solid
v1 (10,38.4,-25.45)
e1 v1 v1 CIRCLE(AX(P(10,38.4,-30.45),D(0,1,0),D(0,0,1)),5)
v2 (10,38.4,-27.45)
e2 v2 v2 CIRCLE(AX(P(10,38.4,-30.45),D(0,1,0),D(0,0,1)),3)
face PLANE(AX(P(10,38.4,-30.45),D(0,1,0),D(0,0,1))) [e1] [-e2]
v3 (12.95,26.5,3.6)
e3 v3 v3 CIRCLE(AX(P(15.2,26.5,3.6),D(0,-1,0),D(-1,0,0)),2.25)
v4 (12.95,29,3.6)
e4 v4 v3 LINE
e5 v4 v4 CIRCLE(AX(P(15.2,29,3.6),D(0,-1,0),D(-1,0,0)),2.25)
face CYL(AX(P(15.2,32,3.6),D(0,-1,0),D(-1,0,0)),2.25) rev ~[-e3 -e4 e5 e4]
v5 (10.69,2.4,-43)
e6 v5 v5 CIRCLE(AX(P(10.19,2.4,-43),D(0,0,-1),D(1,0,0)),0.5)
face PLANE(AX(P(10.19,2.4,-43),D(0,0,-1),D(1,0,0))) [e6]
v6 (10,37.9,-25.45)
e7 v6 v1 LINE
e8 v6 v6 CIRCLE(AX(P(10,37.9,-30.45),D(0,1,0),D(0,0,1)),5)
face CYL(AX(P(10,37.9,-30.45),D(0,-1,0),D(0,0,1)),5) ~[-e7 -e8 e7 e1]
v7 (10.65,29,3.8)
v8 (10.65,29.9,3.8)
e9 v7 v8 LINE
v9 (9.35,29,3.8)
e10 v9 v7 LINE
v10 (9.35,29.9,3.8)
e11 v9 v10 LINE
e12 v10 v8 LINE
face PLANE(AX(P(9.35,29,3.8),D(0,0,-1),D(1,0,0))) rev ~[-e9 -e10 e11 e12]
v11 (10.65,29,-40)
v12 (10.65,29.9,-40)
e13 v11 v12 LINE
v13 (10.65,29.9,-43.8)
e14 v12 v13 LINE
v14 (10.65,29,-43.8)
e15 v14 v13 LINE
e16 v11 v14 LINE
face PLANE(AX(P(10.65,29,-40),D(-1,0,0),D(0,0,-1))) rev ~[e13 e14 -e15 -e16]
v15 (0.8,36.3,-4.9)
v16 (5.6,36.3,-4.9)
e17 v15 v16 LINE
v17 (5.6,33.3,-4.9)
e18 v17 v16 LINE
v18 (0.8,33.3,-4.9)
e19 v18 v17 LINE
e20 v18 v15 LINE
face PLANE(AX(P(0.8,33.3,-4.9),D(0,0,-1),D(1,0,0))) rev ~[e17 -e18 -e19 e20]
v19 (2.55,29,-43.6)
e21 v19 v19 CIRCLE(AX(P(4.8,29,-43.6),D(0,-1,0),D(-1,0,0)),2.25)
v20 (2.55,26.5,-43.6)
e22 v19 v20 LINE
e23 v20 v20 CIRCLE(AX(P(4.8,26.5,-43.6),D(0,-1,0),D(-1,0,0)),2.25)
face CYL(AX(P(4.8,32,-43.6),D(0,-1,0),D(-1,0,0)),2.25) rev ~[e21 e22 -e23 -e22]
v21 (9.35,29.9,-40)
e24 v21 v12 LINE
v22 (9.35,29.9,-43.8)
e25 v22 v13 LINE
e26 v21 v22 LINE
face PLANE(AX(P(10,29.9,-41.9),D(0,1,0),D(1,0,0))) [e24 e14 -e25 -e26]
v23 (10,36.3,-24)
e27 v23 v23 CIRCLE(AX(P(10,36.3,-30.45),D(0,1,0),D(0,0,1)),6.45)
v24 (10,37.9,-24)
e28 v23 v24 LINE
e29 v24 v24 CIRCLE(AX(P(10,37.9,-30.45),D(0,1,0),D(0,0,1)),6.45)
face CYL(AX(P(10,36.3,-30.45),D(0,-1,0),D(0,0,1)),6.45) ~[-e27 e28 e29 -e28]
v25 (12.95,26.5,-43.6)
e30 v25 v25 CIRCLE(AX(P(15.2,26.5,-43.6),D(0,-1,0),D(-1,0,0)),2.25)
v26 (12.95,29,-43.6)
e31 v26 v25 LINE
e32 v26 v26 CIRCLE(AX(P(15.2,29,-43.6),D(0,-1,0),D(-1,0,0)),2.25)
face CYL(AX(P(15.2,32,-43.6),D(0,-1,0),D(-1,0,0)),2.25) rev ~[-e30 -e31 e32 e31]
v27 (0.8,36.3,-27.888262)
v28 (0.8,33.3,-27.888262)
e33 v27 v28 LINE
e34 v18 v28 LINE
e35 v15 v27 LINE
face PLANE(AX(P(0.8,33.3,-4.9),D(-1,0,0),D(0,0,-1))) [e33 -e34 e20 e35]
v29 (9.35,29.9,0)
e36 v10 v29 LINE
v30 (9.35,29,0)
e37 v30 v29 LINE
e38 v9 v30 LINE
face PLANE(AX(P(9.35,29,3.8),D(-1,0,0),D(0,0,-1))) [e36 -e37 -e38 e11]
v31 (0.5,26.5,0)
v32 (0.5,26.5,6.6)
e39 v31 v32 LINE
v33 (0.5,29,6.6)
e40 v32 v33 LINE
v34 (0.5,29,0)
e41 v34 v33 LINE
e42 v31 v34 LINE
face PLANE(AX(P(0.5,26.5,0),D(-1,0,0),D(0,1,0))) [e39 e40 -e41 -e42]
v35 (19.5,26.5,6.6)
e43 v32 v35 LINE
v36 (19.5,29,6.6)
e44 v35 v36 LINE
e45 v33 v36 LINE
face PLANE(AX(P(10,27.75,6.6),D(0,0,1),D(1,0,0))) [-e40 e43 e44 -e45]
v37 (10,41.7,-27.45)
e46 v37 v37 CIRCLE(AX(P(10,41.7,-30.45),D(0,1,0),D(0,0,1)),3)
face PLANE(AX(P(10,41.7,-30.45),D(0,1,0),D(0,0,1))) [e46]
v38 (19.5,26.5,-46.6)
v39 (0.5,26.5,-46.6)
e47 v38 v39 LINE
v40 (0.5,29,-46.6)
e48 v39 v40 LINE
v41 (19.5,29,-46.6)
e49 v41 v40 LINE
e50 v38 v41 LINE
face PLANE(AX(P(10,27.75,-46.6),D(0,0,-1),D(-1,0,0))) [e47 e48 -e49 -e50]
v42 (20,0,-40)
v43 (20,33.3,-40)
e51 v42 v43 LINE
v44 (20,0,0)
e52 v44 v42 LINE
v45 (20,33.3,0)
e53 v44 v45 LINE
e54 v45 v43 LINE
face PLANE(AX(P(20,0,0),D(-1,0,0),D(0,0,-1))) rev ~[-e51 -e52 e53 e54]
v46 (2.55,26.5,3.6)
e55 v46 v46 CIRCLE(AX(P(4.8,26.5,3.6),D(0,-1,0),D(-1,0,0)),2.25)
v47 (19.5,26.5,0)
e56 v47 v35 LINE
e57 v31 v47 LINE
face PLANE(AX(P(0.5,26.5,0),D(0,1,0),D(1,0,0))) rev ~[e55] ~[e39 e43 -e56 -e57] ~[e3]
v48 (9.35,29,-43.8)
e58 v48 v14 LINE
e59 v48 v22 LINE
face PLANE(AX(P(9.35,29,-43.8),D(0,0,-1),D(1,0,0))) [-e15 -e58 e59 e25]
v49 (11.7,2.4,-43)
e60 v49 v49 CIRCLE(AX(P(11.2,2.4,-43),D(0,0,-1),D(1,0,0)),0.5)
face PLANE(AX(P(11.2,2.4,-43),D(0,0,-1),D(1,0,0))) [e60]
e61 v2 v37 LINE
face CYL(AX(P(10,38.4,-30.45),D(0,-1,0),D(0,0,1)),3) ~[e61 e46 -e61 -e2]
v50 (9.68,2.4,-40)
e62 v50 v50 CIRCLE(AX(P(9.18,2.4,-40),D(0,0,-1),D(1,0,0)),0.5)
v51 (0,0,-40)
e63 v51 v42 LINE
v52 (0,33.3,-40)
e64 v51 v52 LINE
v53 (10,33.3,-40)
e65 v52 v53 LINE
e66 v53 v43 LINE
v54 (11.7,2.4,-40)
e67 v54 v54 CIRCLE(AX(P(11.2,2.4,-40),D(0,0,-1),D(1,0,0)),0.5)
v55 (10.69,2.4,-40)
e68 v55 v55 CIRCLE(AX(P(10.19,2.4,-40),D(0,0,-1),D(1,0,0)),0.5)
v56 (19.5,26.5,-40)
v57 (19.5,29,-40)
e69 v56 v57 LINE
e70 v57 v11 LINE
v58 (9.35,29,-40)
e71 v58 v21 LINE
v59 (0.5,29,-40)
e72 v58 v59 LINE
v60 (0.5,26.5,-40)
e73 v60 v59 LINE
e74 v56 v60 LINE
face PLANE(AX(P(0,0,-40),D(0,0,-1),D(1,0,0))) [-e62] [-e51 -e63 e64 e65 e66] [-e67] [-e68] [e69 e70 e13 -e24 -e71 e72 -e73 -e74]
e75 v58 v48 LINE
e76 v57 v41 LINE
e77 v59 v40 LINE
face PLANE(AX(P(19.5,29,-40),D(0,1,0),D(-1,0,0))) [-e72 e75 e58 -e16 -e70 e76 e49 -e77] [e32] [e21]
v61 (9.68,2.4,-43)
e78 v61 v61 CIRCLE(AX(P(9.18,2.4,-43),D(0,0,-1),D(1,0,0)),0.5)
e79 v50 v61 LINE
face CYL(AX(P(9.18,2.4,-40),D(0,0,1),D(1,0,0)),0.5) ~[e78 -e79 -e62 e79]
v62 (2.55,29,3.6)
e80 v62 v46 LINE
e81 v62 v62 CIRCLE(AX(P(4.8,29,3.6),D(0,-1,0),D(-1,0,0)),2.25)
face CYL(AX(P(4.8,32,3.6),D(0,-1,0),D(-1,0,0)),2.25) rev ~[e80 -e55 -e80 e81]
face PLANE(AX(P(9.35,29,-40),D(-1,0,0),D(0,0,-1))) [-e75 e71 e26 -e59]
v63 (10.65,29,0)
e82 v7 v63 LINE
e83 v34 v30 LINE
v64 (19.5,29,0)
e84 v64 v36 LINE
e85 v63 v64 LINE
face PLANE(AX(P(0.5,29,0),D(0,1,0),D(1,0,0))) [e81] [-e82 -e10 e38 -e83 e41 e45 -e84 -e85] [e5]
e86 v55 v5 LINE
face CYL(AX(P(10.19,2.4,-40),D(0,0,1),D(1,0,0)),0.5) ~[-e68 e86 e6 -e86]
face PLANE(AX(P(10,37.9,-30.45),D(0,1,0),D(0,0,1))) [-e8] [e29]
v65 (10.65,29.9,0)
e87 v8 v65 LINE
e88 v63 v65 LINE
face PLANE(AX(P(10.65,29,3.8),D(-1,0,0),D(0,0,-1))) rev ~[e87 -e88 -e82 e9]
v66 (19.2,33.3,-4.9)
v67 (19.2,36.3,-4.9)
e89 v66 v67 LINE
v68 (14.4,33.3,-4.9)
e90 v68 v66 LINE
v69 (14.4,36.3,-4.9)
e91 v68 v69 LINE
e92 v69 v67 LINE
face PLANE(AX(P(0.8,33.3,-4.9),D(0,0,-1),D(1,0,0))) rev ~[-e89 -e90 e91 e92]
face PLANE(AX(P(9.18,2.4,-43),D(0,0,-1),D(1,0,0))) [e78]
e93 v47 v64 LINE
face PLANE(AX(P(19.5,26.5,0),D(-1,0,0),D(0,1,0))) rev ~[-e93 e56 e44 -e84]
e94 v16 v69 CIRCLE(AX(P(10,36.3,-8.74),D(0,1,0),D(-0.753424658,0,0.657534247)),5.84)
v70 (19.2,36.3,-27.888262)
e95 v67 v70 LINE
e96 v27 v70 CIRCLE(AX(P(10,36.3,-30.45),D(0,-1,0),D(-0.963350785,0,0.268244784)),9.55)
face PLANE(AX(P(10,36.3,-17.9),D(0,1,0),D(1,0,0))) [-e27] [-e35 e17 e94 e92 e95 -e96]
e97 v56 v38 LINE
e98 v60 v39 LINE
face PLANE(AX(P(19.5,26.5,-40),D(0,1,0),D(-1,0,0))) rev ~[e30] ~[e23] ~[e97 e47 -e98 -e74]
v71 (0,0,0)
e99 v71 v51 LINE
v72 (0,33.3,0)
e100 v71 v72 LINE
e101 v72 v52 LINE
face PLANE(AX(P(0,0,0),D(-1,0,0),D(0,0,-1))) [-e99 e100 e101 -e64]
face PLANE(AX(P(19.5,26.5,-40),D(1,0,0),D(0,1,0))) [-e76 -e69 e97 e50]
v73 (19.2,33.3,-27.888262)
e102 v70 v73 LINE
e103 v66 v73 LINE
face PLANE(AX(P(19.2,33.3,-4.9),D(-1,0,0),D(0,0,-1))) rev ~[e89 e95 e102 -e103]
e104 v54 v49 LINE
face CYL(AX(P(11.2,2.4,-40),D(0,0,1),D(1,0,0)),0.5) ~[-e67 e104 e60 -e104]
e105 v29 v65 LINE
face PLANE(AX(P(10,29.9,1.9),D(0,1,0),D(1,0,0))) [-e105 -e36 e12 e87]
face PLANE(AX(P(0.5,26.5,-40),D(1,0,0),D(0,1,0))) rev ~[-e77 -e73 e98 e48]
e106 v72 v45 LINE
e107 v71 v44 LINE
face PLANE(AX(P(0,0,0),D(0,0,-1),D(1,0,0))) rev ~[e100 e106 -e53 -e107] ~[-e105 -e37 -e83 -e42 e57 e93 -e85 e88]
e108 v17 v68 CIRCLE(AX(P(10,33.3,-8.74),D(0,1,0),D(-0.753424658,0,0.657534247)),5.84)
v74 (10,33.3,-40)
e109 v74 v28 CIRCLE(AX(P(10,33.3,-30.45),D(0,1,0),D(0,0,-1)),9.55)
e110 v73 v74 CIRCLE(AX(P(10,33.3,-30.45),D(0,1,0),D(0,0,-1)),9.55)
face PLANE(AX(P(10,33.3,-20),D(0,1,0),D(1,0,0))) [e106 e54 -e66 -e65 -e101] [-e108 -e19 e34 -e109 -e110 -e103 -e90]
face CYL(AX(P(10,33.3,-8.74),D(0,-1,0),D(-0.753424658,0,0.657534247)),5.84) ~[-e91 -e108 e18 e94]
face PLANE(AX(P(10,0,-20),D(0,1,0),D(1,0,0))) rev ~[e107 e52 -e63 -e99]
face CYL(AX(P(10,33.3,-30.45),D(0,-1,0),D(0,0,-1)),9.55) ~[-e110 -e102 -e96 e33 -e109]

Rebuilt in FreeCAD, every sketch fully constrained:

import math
import FreeCAD as App
import Part
import Sketcher


def add_polygon(sketch, points):
    """Adds a closed chain of lines whose ends are joined by coincident constraints."""
    first, n = sketch.GeometryCount, len(points)
    for a, b in zip(points, points[1:] + points[:1]):
        sketch.addGeometry(Part.LineSegment(App.Vector(*a, 0), App.Vector(*b, 0)), False)
    for i in range(n):
        sketch.addConstraint(Sketcher.Constraint("Coincident", first + i, 2, first + (i + 1) % n, 1))

doc = App.newDocument("Part")
body = doc.addObject("PartDesign::Body", "Body")

# Sketch on XZ plane
sketch1 = doc.addObject("Sketcher::SketchObject", "Sketch")
body.addObject(sketch1)
sketch1.AttachmentSupport = (doc.XZ_Plane, [""])
sketch1.MapMode = "FlatFace"
add_polygon(sketch1, [(0, -40), (0, 0), (20, 0), (20, -40)])  # lines 0-3
sketch1.addConstraint([
    Sketcher.Constraint("Vertical", 0),
    Sketcher.Constraint("Horizontal", 1),
    Sketcher.Constraint("Vertical", 2),
    Sketcher.Constraint("Horizontal", 3),
    Sketcher.Constraint("Coincident", 0, 2, -1, 1),
    Sketcher.Constraint("DistanceX", 1, 1, 1, 2, 20.0),
    Sketcher.Constraint("DistanceY", 0, 1, 0, 2, 40.0),
])
pad1 = doc.addObject("PartDesign::Pad", "Pad")
body.addObject(pad1)
pad1.Profile = sketch1
pad1.Length = 33.3
pad1.Reversed = True

# Sketch on XY plane
sketch2 = doc.addObject("Sketcher::SketchObject", "Sketch001")
body.addObject(sketch2)
sketch2.AttachmentSupport = (doc.XY_Plane, [""])
sketch2.MapMode = "FlatFace"
add_polygon(sketch2, [(0.5, 29), (0.5, 26.5), (19.5, 26.5), (19.5, 29)])  # lines 0-3
sketch2.addConstraint([
    Sketcher.Constraint("Vertical", 0),
    Sketcher.Constraint("Horizontal", 1),
    Sketcher.Constraint("Vertical", 2),
    Sketcher.Constraint("Horizontal", 3),
    Sketcher.Constraint("DistanceX", 1, 1, 1, 2, 19.0),
    Sketcher.Constraint("DistanceY", 0, 2, 0, 1, 2.5),
    Sketcher.Constraint("DistanceY", -1, 1, 2, 2, 29.0),
    Sketcher.Constraint("DistanceX", -1, 1, 0, 2, 0.5),
])
pad2 = doc.addObject("PartDesign::Pad", "Pad001")
body.addObject(pad2)
pad2.Profile = sketch2
pad2.Length = 6.6

# Sketch on XY plane
sketch3 = doc.addObject("Sketcher::SketchObject", "Sketch002")
body.addObject(sketch3)
sketch3.AttachmentSupport = (doc.XY_Plane, [""])
sketch3.MapMode = "FlatFace"
sketch3.AttachmentOffset = App.Placement(App.Vector(0, 0, -40), App.Rotation())
add_polygon(sketch3, [(19.5, 29), (19.5, 26.5), (0.5, 26.5), (0.5, 29)])  # lines 0-3
sketch3.addConstraint([
    Sketcher.Constraint("Vertical", 0),
    Sketcher.Constraint("Horizontal", 1),
    Sketcher.Constraint("Vertical", 2),
    Sketcher.Constraint("Horizontal", 3),
    Sketcher.Constraint("DistanceX", 1, 2, 1, 1, 19.0),
    Sketcher.Constraint("DistanceY", 0, 2, 0, 1, 2.5),
    Sketcher.Constraint("DistanceY", -1, 1, 2, 2, 29.0),
    Sketcher.Constraint("DistanceX", -1, 1, 0, 2, 19.5),
])
pad3 = doc.addObject("PartDesign::Pad", "Pad002")
body.addObject(pad3)
pad3.Profile = sketch3
pad3.Length = 6.6
pad3.Reversed = True

# Sketch on XZ plane
sketch4 = doc.addObject("Sketcher::SketchObject", "Sketch003")
body.addObject(sketch4)
sketch4.AttachmentSupport = (doc.XZ_Plane, [""])
sketch4.MapMode = "FlatFace"
sketch4.AttachmentOffset = App.Placement(App.Vector(0, 0, -33.3), App.Rotation())
sketch4.addGeometry(Part.Circle(App.Vector(10, -30, 0), App.Vector(0, 0, 1), 10), False)
sketch4.addConstraint([
    Sketcher.Constraint("Diameter", 0, 19.1),
    Sketcher.Constraint("DistanceX", -1, 1, 0, 3, 10.0),
    Sketcher.Constraint("DistanceY", 0, 3, -1, 1, 30.45),
])
pad4 = doc.addObject("PartDesign::Pad", "Pad003")
body.addObject(pad4)
pad4.Profile = sketch4
pad4.Length = 3
pad4.Reversed = True

# Sketch on XZ plane
sketch5 = doc.addObject("Sketcher::SketchObject", "Sketch004")
body.addObject(sketch5)
sketch5.AttachmentSupport = (doc.XZ_Plane, [""])
sketch5.MapMode = "FlatFace"
sketch5.AttachmentOffset = App.Placement(App.Vector(0, 0, -33.3), App.Rotation())
add_polygon(sketch5, [(1, -31), (1, -5), (19, -5), (19, -31)])  # lines 0-3
sketch5.addConstraint([
    Sketcher.Constraint("Vertical", 0),
    Sketcher.Constraint("Horizontal", 1),
    Sketcher.Constraint("Vertical", 2),
    Sketcher.Constraint("Horizontal", 3),
    Sketcher.Constraint("DistanceY", 0, 1, 0, 2, 26.0),
    Sketcher.Constraint("DistanceX", 1, 1, 1, 2, 18.4),
    Sketcher.Constraint("DistanceX", -1, 1, 0, 2, 0.8),
    Sketcher.Constraint("DistanceY", 0, 2, -1, 1, 4.9),
])
pad5 = doc.addObject("PartDesign::Pad", "Pad004")
body.addObject(pad5)
pad5.Profile = sketch5
pad5.Length = 3
pad5.Reversed = True

# Sketch on XY plane
sketch6 = doc.addObject("Sketcher::SketchObject", "Sketch005")
body.addObject(sketch6)
sketch6.AttachmentSupport = (doc.XY_Plane, [""])
sketch6.MapMode = "FlatFace"
sketch6.AttachmentOffset = App.Placement(App.Vector(0, 0, -40), App.Rotation())
sketch6.addGeometry(Part.Circle(App.Vector(11.2, 2.4, 0), App.Vector(0, 0, 1), 0.5), False)
sketch6.addConstraint([
    Sketcher.Constraint("Diameter", 0, 1.0),
    Sketcher.Constraint("DistanceX", -1, 1, 0, 3, 11.2),
    Sketcher.Constraint("DistanceY", -1, 1, 0, 3, 2.4),
])
pad6 = doc.addObject("PartDesign::Pad", "Pad005")
body.addObject(pad6)
pad6.Profile = sketch6
pad6.Length = 3
pad6.Reversed = True
doc.recompute()

linearpattern = doc.addObject("PartDesign::LinearPattern", "LinearPattern")
body.addObject(linearpattern)
linearpattern.Originals = [pad6]
linearpattern.Direction = (doc.X_Axis, [""])
linearpattern.Mode = "offset"
linearpattern.Offset = 1.01
linearpattern.Occurrences = 3
linearpattern.Reversed = True
body.Tip = linearpattern

# Sketch on XZ plane
sketch7 = doc.addObject("Sketcher::SketchObject", "Sketch006")
body.addObject(sketch7)
sketch7.AttachmentSupport = (doc.XZ_Plane, [""])
sketch7.MapMode = "FlatFace"
sketch7.AttachmentOffset = App.Placement(App.Vector(0, 0, -36.3), App.Rotation())
sketch7.addGeometry(Part.Circle(App.Vector(10, -30, 0), App.Vector(0, 0, 1), 6), False)
sketch7.addConstraint([
    Sketcher.Constraint("Diameter", 0, 12.9),
    Sketcher.Constraint("DistanceX", -1, 1, 0, 3, 10.0),
    Sketcher.Constraint("DistanceY", 0, 3, -1, 1, 30.45),
])
pad7 = doc.addObject("PartDesign::Pad", "Pad006")
body.addObject(pad7)
pad7.Profile = sketch7
pad7.Length = 1.6
pad7.Reversed = True

# Sketch on XZ plane
sketch8 = doc.addObject("Sketcher::SketchObject", "Sketch007")
body.addObject(sketch8)
sketch8.AttachmentSupport = (doc.XZ_Plane, [""])
sketch8.MapMode = "FlatFace"
sketch8.AttachmentOffset = App.Placement(App.Vector(0, 0, -37.9), App.Rotation())
sketch8.addGeometry(Part.Circle(App.Vector(10, -30, 0), App.Vector(0, 0, 1), 5), False)
sketch8.addConstraint([
    Sketcher.Constraint("Diameter", 0, 10.0),
    Sketcher.Constraint("DistanceX", -1, 1, 0, 3, 10.0),
    Sketcher.Constraint("DistanceY", 0, 3, -1, 1, 30.45),
])
pad8 = doc.addObject("PartDesign::Pad", "Pad007")
body.addObject(pad8)
pad8.Profile = sketch8
pad8.Length = 0.5
pad8.Reversed = True

# Sketch on XZ plane
sketch9 = doc.addObject("Sketcher::SketchObject", "Sketch008")
body.addObject(sketch9)
sketch9.AttachmentSupport = (doc.XZ_Plane, [""])
sketch9.MapMode = "FlatFace"
sketch9.AttachmentOffset = App.Placement(App.Vector(0, 0, -38.4), App.Rotation())
sketch9.addGeometry(Part.Circle(App.Vector(10, -30.4, 0), App.Vector(0, 0, 1), 3), False)
sketch9.addConstraint([
    Sketcher.Constraint("Diameter", 0, 6.0),
    Sketcher.Constraint("DistanceX", -1, 1, 0, 3, 10.0),
    Sketcher.Constraint("DistanceY", 0, 3, -1, 1, 30.45),
])
pad9 = doc.addObject("PartDesign::Pad", "Pad008")
body.addObject(pad9)
pad9.Profile = sketch9
pad9.Length = 3.3
pad9.Reversed = True

# Sketch on XZ plane
sketch10 = doc.addObject("Sketcher::SketchObject", "Sketch009")
body.addObject(sketch10)
sketch10.AttachmentSupport = (doc.XZ_Plane, [""])
sketch10.MapMode = "FlatFace"
sketch10.AttachmentOffset = App.Placement(App.Vector(0, 0, -33.3), App.Rotation())
sketch10.addGeometry([
    Part.LineSegment(App.Vector(14, -5, 0), App.Vector(6, -5, 0)),
    Part.ArcOfCircle(Part.Circle(App.Vector(10, -9, 0), App.Vector(0, 0, 1), 6), math.radians(41), math.radians(139)),
], False)
sketch10.addConstraint([
    Sketcher.Constraint("Coincident", 0, 1, 1, 1),
    Sketcher.Constraint("Coincident", 1, 2, 0, 2),
    Sketcher.Constraint("Horizontal", 0),
    Sketcher.Constraint("Radius", 1, 5.84),
    Sketcher.Constraint("DistanceX", 0, 2, 0, 1, 8.8),
    Sketcher.Constraint("DistanceX", -1, 1, 1, 3, 10.0),
    Sketcher.Constraint("DistanceY", 0, 1, -1, 1, 4.9),
])
pad10 = doc.addObject("PartDesign::Pad", "Pad009")
body.addObject(pad10)
pad10.Profile = sketch10
pad10.Length = 3
pad10.Reversed = True

# Sketch on XZ plane
sketch11 = doc.addObject("Sketcher::SketchObject", "Sketch010")
body.addObject(sketch11)
sketch11.AttachmentSupport = (doc.XZ_Plane, [""])
sketch11.MapMode = "FlatFace"
sketch11.AttachmentOffset = App.Placement(App.Vector(0, 0, -29), App.Rotation())
add_polygon(sketch11, [(9.3, 0), (9.3, 3.8), (10.7, 3.8), (10.7, 0)])  # lines 0-3
sketch11.addConstraint([
    Sketcher.Constraint("Vertical", 0),
    Sketcher.Constraint("Horizontal", 1),
    Sketcher.Constraint("Vertical", 2),
    Sketcher.Constraint("Horizontal", 3),
    Sketcher.Constraint("PointOnObject", 2, 2, -1),
    Sketcher.Constraint("DistanceX", 1, 1, 1, 2, 1.3),
    Sketcher.Constraint("DistanceY", 0, 1, 0, 2, 3.8),
    Sketcher.Constraint("DistanceX", -1, 1, 0, 2, 9.35),
])
pad11 = doc.addObject("PartDesign::Pad", "Pad010")
body.addObject(pad11)
pad11.Profile = sketch11
pad11.Length = 0.9
pad11.Reversed = True

# Sketch on XZ plane
sketch12 = doc.addObject("Sketcher::SketchObject", "Sketch011")
body.addObject(sketch12)
sketch12.AttachmentSupport = (doc.XZ_Plane, [""])
sketch12.MapMode = "FlatFace"
sketch12.AttachmentOffset = App.Placement(App.Vector(0, 0, -29), App.Rotation())
add_polygon(sketch12, [(9.3, -43.8), (9.3, -40), (10.7, -40), (10.7, -43.8)])  # lines 0-3
sketch12.addConstraint([
    Sketcher.Constraint("Vertical", 0),
    Sketcher.Constraint("Horizontal", 1),
    Sketcher.Constraint("Vertical", 2),
    Sketcher.Constraint("Horizontal", 3),
    Sketcher.Constraint("DistanceX", 1, 1, 1, 2, 1.3),
    Sketcher.Constraint("DistanceY", 0, 1, 0, 2, 3.8),
    Sketcher.Constraint("DistanceY", 0, 2, -1, 1, 40.0),
    Sketcher.Constraint("DistanceX", -1, 1, 0, 2, 9.35),
])
pad12 = doc.addObject("PartDesign::Pad", "Pad011")
body.addObject(pad12)
pad12.Profile = sketch12
pad12.Length = 0.9
pad12.Reversed = True

# Sketch on XZ plane
sketch13 = doc.addObject("Sketcher::SketchObject", "Sketch012")
body.addObject(sketch13)
sketch13.AttachmentSupport = (doc.XZ_Plane, [""])
sketch13.MapMode = "FlatFace"
sketch13.AttachmentOffset = App.Placement(App.Vector(0, 0, -29), App.Rotation())
sketch13.addGeometry([
    Part.Circle(App.Vector(4.8, -43.6, 0), App.Vector(0, 0, 1), 2.2),
    Part.Circle(App.Vector(15.2, -43.6, 0), App.Vector(0, 0, 1), 2.2),
    Part.Circle(App.Vector(4.8, 3.6, 0), App.Vector(0, 0, 1), 2.2),
    Part.Circle(App.Vector(15.2, 3.6, 0), App.Vector(0, 0, 1), 2.2),
], False)
sketch13.addConstraint([
    Sketcher.Constraint("Equal", 0, 1),
    Sketcher.Constraint("Equal", 1, 2),
    Sketcher.Constraint("Equal", 2, 3),
    Sketcher.Constraint("Horizontal", 0, 3, 1, 3),
    Sketcher.Constraint("Horizontal", 2, 3, 3, 3),
    Sketcher.Constraint("Vertical", 0, 3, 2, 3),
    Sketcher.Constraint("Vertical", 1, 3, 3, 3),
    Sketcher.Constraint("Diameter", 0, 4.5),
    Sketcher.Constraint("DistanceX", -1, 1, 0, 3, 4.8),
    Sketcher.Constraint("DistanceY", 0, 3, -1, 1, 43.6),
    Sketcher.Constraint("DistanceX", -1, 1, 1, 3, 15.2),
    Sketcher.Constraint("DistanceY", -1, 1, 2, 3, 3.6),
])
doc.recompute()
hole = doc.addObject("PartDesign::Hole", "Hole")
body.addObject(hole)
hole.Profile = sketch13
hole.ThreadType = "None"
hole.Diameter = 4.5
hole.DepthType = "Dimension"
hole.Depth = 3
hole.DrillPoint = "Angled"
hole.DrillPointAngle = 118
hole.Reversed = True

doc.recompute()
